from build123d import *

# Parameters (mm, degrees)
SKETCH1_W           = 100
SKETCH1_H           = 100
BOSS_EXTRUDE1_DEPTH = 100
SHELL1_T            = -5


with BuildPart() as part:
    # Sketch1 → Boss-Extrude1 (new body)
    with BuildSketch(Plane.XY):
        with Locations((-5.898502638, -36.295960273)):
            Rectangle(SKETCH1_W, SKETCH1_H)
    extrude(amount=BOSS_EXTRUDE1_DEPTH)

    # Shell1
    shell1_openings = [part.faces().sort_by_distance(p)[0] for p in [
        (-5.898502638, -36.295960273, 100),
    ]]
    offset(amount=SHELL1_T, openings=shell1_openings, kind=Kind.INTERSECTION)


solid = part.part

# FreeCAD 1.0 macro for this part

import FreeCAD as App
import Part
import Sketcher


def faces_at(feature, points):
    """Names of the faces that lie closest to the given points."""
    faces = feature.Shape.Faces
    near = lambda p: min(range(len(faces)), key=lambda i: faces[i].distToShape(Part.Vertex(*p))[0])
    return sorted({f"Face{near(p) + 1}" for p in points})


def add_polygon(sketch, points):
    """Adds a closed chain of lines whose ends are joined by coincident constraints."""
    first, n = sketch.GeometryCount, len(points)
    for a, b in zip(points, points[1:] + points[:1]):
        sketch.addGeometry(Part.LineSegment(App.Vector(*a, 0), App.Vector(*b, 0)), False)
    for i in range(n):
        sketch.addConstraint(Sketcher.Constraint("Coincident", first + i, 2, first + (i + 1) % n, 1))

doc = App.newDocument("Part")
body = doc.addObject("PartDesign::Body", "Body")

# Sketch on XY plane
sketch1 = body.newObject("Sketcher::SketchObject", "Sketch")
sketch1.AttachmentSupport = (doc.getObject("XY_Plane"), [""])
sketch1.MapMode = "FlatFace"
add_polygon(sketch1, [(-56, 14), (-56, -86), (44, -86), (44, 14)])  # lines 0-3
sketch1.addConstraint([
    Sketcher.Constraint("Vertical", 0),
    Sketcher.Constraint("Horizontal", 1),
    Sketcher.Constraint("Vertical", 2),
    Sketcher.Constraint("Horizontal", 3),
    Sketcher.Constraint("Equal", 3, 0),
    Sketcher.Constraint("DistanceX", 1, 1, 1, 2, 100.0),
    Sketcher.Constraint("DistanceY", 0, 2, -1, 1, 86.29596),
    Sketcher.Constraint("DistanceX", 0, 2, -1, 1, 55.898503),
])
pad1 = body.newObject("PartDesign::Pad", "Pad")
pad1.Profile = sketch1
pad1.Length = 100
doc.recompute()

thickness = body.newObject("PartDesign::Thickness", "Thickness")
thickness.Base = (pad1, faces_at(pad1, [(-5.899, -36.296, 100)]))
thickness.Value = 5
thickness.Reversed = True
thickness.Join = "Intersection"

doc.recompute()
